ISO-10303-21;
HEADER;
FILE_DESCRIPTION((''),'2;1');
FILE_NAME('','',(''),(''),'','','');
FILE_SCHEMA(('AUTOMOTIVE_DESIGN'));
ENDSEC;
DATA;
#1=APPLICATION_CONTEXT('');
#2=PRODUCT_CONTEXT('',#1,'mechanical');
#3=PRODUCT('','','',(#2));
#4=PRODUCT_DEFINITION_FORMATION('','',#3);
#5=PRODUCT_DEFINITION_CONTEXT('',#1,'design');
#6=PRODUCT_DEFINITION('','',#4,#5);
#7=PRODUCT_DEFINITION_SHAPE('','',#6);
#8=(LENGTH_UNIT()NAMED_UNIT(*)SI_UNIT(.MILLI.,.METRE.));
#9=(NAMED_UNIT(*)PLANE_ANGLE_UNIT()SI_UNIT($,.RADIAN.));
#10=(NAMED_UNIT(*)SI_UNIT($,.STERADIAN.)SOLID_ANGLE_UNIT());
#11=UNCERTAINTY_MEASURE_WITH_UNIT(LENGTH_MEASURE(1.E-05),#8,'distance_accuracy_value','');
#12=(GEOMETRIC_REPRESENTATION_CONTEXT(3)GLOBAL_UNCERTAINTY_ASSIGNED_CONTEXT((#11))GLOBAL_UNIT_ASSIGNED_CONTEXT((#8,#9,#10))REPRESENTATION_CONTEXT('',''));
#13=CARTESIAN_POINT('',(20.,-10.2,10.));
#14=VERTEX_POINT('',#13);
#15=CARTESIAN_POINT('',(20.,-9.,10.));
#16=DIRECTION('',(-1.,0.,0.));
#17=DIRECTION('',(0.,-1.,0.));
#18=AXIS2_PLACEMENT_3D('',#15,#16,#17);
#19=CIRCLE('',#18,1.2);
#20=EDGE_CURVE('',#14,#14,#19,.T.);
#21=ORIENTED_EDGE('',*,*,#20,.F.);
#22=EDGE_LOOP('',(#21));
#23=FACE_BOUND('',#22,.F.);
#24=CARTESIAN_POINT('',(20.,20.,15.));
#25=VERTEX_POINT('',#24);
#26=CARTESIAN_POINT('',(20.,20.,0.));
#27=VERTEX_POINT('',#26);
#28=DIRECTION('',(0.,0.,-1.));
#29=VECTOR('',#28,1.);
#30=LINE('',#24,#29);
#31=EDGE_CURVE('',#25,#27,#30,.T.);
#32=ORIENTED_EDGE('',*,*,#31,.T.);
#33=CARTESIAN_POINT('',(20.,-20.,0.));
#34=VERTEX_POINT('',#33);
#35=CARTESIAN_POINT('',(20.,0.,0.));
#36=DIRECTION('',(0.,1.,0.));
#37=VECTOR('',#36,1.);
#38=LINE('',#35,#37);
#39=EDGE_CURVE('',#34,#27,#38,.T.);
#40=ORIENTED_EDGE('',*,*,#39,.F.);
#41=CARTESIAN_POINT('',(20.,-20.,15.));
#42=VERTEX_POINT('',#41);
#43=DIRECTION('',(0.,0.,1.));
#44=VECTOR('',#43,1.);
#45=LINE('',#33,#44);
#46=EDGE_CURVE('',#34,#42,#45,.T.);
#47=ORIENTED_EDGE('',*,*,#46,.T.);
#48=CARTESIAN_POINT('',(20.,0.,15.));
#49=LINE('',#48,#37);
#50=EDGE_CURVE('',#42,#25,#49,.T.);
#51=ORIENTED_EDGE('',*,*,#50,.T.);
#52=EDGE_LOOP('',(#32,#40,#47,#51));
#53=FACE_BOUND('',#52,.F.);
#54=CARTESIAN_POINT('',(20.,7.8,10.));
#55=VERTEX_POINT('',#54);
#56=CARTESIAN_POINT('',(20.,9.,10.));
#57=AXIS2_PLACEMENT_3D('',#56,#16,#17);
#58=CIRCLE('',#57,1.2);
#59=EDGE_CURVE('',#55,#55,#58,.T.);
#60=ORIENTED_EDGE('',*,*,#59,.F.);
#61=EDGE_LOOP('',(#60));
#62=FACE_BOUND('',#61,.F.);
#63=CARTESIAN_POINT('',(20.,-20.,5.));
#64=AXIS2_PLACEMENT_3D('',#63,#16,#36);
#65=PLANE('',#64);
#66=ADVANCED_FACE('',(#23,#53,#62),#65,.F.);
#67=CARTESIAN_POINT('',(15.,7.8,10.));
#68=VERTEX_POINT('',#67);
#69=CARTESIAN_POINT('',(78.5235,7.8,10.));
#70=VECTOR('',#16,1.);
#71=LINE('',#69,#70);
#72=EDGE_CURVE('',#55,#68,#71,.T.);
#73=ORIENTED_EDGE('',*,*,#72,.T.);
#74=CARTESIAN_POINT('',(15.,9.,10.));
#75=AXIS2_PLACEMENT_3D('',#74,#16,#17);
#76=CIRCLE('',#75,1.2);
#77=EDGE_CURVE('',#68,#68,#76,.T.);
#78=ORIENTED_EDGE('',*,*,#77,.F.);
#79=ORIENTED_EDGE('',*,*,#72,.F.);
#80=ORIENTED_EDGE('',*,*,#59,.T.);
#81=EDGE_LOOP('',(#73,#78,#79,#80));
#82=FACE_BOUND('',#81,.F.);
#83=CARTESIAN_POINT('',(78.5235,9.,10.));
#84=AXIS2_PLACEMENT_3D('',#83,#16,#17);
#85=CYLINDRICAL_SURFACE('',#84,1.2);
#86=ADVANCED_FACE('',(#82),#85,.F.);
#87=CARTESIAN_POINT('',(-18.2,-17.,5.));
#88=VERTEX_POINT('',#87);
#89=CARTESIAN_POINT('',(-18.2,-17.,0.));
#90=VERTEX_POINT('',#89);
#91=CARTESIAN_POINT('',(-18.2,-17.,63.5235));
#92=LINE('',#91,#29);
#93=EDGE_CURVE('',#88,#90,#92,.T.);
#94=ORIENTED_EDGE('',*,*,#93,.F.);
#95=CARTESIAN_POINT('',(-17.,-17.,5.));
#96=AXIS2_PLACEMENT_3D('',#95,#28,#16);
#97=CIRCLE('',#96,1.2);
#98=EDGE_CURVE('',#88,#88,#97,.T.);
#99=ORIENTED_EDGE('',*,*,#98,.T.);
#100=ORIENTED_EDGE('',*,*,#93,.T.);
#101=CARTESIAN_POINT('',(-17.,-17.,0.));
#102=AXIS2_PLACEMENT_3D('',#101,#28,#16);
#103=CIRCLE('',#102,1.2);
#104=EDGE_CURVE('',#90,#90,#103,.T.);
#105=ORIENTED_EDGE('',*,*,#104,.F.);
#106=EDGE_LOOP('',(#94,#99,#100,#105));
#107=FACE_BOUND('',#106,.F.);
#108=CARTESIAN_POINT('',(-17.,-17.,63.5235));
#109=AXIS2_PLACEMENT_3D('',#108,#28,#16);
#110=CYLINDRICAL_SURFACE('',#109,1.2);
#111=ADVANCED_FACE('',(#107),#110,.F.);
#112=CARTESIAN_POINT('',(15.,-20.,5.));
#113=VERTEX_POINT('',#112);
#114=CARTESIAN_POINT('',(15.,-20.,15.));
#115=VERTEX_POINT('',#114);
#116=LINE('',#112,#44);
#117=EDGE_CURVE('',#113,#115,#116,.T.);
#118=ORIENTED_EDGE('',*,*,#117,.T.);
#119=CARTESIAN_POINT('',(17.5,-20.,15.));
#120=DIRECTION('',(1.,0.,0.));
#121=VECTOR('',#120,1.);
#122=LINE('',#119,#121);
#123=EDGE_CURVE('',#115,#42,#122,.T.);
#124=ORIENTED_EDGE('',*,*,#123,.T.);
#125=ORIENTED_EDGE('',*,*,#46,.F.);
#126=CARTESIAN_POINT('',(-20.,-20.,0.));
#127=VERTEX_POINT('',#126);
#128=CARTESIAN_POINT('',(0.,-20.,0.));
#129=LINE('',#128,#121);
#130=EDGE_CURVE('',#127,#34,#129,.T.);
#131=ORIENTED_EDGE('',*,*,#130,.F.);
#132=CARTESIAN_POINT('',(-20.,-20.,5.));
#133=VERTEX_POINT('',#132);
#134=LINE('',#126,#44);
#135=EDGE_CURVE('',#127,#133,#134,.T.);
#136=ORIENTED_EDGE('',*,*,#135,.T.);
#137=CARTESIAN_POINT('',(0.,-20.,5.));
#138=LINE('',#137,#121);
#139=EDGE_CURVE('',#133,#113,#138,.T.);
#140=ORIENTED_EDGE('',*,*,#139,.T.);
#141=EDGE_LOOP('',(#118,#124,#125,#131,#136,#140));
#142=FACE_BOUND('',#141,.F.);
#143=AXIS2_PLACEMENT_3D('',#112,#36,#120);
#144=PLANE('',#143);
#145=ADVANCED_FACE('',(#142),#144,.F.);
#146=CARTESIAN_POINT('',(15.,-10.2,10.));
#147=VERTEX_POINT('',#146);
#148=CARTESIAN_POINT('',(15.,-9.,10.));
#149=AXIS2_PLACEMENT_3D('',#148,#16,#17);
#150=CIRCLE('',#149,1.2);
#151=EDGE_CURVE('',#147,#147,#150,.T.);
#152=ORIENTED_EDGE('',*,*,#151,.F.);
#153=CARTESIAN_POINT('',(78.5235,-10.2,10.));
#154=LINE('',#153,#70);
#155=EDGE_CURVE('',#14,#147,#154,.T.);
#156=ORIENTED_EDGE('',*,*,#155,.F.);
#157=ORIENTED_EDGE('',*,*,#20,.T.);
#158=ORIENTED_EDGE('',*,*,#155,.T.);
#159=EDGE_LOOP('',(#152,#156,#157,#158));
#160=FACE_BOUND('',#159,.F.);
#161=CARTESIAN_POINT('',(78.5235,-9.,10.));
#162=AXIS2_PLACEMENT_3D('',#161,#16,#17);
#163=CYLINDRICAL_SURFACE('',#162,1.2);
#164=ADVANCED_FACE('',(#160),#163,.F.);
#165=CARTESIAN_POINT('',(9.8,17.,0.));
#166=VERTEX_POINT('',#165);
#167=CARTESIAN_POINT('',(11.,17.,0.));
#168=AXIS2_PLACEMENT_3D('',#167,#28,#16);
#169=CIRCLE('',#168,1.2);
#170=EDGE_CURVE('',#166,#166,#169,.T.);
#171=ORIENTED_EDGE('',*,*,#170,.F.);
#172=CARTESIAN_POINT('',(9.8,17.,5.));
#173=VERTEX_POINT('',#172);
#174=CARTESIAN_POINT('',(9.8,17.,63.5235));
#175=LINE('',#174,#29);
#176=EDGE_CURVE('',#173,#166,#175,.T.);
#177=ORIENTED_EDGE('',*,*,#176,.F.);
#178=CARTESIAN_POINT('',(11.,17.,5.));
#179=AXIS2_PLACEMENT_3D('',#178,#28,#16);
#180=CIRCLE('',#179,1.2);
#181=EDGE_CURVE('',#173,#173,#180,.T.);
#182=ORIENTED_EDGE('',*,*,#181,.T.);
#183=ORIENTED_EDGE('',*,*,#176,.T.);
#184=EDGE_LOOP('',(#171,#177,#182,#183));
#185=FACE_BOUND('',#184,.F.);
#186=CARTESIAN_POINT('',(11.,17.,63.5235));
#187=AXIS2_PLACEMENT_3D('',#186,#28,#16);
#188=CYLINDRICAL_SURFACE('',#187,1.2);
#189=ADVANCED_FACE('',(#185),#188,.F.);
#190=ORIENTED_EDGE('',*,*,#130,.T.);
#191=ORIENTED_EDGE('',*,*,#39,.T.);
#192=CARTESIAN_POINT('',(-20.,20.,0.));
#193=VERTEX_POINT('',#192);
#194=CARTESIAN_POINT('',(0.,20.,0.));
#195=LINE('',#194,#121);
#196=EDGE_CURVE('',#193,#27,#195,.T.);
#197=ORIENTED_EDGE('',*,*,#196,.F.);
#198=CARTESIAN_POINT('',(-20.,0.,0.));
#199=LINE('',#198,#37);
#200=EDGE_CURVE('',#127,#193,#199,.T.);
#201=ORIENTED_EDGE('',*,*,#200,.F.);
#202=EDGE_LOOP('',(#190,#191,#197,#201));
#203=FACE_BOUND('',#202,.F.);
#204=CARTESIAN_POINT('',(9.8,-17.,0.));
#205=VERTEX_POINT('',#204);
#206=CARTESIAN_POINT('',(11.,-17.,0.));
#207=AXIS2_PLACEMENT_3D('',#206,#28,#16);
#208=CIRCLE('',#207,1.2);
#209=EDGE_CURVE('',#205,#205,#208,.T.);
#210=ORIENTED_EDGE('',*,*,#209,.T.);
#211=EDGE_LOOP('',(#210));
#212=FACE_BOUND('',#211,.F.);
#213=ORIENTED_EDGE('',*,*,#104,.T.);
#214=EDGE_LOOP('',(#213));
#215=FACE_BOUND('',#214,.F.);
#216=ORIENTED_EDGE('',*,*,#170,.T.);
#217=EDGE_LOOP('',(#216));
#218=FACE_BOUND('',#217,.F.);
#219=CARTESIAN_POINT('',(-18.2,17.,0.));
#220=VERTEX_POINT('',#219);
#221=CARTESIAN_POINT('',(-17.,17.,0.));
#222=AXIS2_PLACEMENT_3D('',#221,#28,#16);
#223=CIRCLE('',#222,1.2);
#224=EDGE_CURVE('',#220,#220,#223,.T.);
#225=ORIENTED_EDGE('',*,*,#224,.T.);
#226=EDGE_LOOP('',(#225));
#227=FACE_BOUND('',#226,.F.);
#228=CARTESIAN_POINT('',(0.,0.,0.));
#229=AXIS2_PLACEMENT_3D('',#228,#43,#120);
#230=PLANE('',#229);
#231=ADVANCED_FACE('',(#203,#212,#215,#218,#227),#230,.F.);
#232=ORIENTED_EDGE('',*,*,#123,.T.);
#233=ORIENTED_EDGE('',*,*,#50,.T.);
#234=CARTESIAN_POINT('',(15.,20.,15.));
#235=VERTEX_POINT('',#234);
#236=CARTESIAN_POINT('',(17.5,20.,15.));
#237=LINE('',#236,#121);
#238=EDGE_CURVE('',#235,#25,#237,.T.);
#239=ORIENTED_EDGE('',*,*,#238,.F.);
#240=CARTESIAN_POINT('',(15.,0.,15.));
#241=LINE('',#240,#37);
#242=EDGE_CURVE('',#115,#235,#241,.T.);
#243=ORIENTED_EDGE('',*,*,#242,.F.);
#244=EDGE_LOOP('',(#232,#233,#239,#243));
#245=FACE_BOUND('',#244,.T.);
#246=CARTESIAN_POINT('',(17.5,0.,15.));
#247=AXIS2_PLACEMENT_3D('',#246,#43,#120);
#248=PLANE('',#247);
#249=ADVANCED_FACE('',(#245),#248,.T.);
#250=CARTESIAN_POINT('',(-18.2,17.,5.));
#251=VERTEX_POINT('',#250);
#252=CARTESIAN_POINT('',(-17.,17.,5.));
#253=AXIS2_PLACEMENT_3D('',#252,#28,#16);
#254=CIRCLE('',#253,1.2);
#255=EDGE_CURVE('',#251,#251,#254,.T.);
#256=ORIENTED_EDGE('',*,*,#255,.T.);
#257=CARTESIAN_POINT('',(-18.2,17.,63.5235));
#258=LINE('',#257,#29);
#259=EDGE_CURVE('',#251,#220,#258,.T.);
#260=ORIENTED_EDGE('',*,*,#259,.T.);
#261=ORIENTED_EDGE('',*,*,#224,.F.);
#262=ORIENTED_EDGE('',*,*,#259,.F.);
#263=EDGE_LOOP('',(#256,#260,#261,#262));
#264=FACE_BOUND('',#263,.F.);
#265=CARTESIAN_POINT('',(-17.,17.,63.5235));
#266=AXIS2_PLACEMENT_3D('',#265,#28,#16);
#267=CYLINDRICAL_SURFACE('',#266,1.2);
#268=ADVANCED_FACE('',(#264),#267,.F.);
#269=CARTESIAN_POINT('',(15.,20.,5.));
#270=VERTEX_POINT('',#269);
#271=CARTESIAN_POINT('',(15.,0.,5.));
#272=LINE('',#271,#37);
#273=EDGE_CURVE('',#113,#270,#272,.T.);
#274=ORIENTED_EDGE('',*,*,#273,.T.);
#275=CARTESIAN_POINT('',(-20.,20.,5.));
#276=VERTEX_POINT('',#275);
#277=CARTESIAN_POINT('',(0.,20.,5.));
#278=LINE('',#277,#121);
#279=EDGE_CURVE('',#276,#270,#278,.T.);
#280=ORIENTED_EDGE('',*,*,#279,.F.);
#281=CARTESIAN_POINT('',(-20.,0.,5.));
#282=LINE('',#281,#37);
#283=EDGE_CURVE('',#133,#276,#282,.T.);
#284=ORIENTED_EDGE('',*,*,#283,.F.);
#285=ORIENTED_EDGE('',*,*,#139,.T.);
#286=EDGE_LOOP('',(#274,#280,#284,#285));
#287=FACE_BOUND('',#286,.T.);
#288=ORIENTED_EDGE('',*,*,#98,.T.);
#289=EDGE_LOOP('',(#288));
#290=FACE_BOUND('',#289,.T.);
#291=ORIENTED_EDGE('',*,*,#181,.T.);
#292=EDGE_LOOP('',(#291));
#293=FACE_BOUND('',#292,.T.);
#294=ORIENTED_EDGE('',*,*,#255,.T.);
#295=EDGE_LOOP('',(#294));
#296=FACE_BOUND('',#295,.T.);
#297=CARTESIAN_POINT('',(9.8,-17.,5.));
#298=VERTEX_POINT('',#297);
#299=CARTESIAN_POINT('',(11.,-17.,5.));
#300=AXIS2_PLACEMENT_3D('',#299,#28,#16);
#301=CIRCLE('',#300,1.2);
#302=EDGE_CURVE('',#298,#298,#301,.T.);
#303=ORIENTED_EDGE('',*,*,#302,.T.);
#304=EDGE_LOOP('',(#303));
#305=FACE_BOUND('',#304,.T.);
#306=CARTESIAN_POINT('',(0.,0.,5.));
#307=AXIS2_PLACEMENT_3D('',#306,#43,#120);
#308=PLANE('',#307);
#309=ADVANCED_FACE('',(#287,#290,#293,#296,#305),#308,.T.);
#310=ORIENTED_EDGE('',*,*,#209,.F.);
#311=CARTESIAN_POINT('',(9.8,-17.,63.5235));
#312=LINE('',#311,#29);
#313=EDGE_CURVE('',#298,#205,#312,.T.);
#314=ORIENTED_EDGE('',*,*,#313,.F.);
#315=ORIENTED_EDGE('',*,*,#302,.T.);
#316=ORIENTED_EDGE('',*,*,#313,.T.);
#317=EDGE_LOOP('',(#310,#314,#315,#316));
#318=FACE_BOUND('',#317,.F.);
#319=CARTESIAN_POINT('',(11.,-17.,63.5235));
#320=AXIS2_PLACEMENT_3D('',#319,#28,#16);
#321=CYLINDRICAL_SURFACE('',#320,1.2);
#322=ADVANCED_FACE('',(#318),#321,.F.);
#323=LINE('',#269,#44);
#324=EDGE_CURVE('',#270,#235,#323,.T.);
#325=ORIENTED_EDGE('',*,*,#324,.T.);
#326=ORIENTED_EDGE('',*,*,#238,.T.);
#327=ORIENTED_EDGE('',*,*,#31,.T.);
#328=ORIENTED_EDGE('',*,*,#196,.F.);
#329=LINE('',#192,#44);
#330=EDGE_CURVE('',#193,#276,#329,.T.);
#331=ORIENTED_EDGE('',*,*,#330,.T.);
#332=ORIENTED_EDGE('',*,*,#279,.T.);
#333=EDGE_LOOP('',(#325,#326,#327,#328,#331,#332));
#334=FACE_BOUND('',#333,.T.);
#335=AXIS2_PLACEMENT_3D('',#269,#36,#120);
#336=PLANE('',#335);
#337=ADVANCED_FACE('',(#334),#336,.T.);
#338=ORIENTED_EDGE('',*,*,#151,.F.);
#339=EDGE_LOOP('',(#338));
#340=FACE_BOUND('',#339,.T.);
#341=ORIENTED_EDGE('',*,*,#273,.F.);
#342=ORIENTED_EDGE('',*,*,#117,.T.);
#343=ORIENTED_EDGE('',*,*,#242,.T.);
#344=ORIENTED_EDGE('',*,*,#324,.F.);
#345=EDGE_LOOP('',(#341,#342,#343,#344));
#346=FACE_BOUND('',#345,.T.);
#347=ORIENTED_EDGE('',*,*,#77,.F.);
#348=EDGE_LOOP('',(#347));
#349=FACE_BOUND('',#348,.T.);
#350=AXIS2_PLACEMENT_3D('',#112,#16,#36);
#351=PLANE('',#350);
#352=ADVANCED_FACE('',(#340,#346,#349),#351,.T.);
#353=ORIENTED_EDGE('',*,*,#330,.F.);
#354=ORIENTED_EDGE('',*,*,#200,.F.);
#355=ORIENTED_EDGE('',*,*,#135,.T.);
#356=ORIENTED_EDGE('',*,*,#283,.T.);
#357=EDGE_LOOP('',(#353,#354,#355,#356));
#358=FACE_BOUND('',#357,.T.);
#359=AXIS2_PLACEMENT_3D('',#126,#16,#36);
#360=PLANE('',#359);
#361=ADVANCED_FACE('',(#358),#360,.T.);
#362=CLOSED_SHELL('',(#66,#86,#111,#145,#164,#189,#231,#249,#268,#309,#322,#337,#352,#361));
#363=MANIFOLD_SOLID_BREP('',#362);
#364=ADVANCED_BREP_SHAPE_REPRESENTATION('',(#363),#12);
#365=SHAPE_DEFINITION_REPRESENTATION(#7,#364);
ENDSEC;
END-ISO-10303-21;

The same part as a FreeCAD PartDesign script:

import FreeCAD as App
import Part
import Sketcher

V = App.Vector
Q = App.Units.Quantity


def add_polygon(sketch, points):
    """Adds a closed chain of lines whose ends are joined by coincident constraints."""
    first, n = sketch.GeometryCount, len(points)
    for a, b in zip(points, points[1:] + points[:1]):
        sketch.addGeometry(Part.LineSegment(App.Vector(*a, 0), App.Vector(*b, 0)), False)
    for i in range(n):
        sketch.addConstraint(Sketcher.Constraint("Coincident", first + i, 2, first + (i + 1) % n, 1))

doc = App.newDocument("Part")
body = doc.addObject("PartDesign::Body", "Body")

sketch1 = body.newObject("Sketcher::SketchObject", "Sketch")
sketch1.AttachmentSupport = (doc.getObject("XY_Plane"), [""])
sketch1.MapMode = "FlatFace"
add_polygon(sketch1, [(-20, 20), (-20, -20), (20, -20), (20, 20)])
sketch1.addConstraint(Sketcher.Constraint("Vertical", 0))
sketch1.addConstraint(Sketcher.Constraint("Horizontal", 1))
sketch1.addConstraint(Sketcher.Constraint("Vertical", 2))
sketch1.addConstraint(Sketcher.Constraint("Horizontal", 3))
sketch1.addConstraint(Sketcher.Constraint("Symmetric", 0, 2, 2, 2, -1, 1))
sketch1.addConstraint(Sketcher.Constraint("Equal", 3, 0))
sketch1.addConstraint(Sketcher.Constraint("DistanceX", 1, 1, 1, 2, Q("40 mm")))
pad1 = body.newObject("PartDesign::Pad", "Pad")
pad1.Profile = sketch1
pad1.Length = 5

sketch2 = body.newObject("Sketcher::SketchObject", "Sketch001")
sketch2.AttachmentSupport = (doc.getObject("XY_Plane"), [""])
sketch2.MapMode = "FlatFace"
sketch2.AttachmentOffset = App.Placement(V(0, 0, 5), App.Rotation())
add_polygon(sketch2, [(15, 20), (15, -20), (20, -20), (20, 20)])
sketch2.addConstraint(Sketcher.Constraint("Vertical", 0))
sketch2.addConstraint(Sketcher.Constraint("Horizontal", 1))
sketch2.addConstraint(Sketcher.Constraint("Vertical", 2))
sketch2.addConstraint(Sketcher.Constraint("Horizontal", 3))
sketch2.addConstraint(Sketcher.Constraint("DistanceX", 1, 1, 1, 2, Q("5 mm")))
sketch2.addConstraint(Sketcher.Constraint("DistanceY", 0, 2, 0, 1, Q("40 mm")))
sketch2.addConstraint(Sketcher.Constraint("DistanceX", -1, 1, 0, 2, Q("15 mm")))
sketch2.addConstraint(Sketcher.Constraint("DistanceY", 0, 2, -1, 1, Q("20 mm")))
pad2 = body.newObject("PartDesign::Pad", "Pad001")
pad2.Profile = sketch2
pad2.Length = 10

sketch3 = body.newObject("Sketcher::SketchObject", "Sketch002")
sketch3.AttachmentSupport = (doc.getObject("YZ_Plane"), [""])
sketch3.MapMode = "FlatFace"
sketch3.AttachmentOffset = App.Placement(V(0, 0, 20), App.Rotation())
sketch3.addGeometry(Part.Circle(V(-9, 10, 0), V(0, 0, 1), 1.2), False)
sketch3.addGeometry(Part.Circle(V(9, 10, 0), V(0, 0, 1), 1.2), False)
sketch3.addConstraint(Sketcher.Constraint("Equal", 0, 1))
sketch3.addConstraint(Sketcher.Constraint("Symmetric", 0, 3, 1, 3, -2))
sketch3.addConstraint(Sketcher.Constraint("Diameter", 0, Q("2.4 mm")))
sketch3.addConstraint(Sketcher.Constraint("DistanceX", 0, 3, -1, 1, Q("9 mm")))
sketch3.addConstraint(Sketcher.Constraint("DistanceY", -1, 1, 0, 3, Q("10 mm")))
doc.recompute()
hole = body.newObject("PartDesign::Hole", "Hole")
hole.Profile = sketch3
hole.ThreadType = "None"
hole.Diameter = 2.4
hole.DepthType = "ThroughAll"

sketch4 = body.newObject("Sketcher::SketchObject", "Sketch003")
sketch4.AttachmentSupport = (doc.getObject("XY_Plane"), [""])
sketch4.MapMode = "FlatFace"
sketch4.AttachmentOffset = App.Placement(V(0, 0, 5), App.Rotation())
sketch4.addGeometry(Part.Circle(V(-17, 17, 0), V(0, 0, 1), 1.2), False)
sketch4.addGeometry(Part.Circle(V(11, 17, 0), V(0, 0, 1), 1.2), False)
sketch4.addGeometry(Part.Circle(V(11, -17, 0), V(0, 0, 1), 1.2), False)
sketch4.addGeometry(Part.Circle(V(-17, -17, 0), V(0, 0, 1), 1.2), False)
sketch4.addConstraint(Sketcher.Constraint("Equal", 0, 1))
sketch4.addConstraint(Sketcher.Constraint("Equal", 1, 2))
sketch4.addConstraint(Sketcher.Constraint("Equal", 2, 3))
sketch4.addConstraint(Sketcher.Constraint("Symmetric", 1, 3, 2, 3, -1))
sketch4.addConstraint(Sketcher.Constraint("Symmetric", 0, 3, 3, 3, -1))
sketch4.addConstraint(Sketcher.Constraint("Horizontal", 0, 3, 1, 3))
sketch4.addConstraint(Sketcher.Constraint("Diameter", 0, Q("2.4 mm")))
sketch4.addConstraint(Sketcher.Constraint("DistanceX", 0, 3, -1, 1, Q("17 mm")))
sketch4.addConstraint(Sketcher.Constraint("DistanceY", -1, 1, 0, 3, Q("17 mm")))
sketch4.addConstraint(Sketcher.Constraint("DistanceX", -1, 1, 1, 3, Q("11 mm")))
doc.recompute()
hole2 = body.newObject("PartDesign::Hole", "Hole001")
hole2.Profile = sketch4
hole2.ThreadType = "None"
hole2.Diameter = 2.4
hole2.DepthType = "ThroughAll"

doc.recompute()
